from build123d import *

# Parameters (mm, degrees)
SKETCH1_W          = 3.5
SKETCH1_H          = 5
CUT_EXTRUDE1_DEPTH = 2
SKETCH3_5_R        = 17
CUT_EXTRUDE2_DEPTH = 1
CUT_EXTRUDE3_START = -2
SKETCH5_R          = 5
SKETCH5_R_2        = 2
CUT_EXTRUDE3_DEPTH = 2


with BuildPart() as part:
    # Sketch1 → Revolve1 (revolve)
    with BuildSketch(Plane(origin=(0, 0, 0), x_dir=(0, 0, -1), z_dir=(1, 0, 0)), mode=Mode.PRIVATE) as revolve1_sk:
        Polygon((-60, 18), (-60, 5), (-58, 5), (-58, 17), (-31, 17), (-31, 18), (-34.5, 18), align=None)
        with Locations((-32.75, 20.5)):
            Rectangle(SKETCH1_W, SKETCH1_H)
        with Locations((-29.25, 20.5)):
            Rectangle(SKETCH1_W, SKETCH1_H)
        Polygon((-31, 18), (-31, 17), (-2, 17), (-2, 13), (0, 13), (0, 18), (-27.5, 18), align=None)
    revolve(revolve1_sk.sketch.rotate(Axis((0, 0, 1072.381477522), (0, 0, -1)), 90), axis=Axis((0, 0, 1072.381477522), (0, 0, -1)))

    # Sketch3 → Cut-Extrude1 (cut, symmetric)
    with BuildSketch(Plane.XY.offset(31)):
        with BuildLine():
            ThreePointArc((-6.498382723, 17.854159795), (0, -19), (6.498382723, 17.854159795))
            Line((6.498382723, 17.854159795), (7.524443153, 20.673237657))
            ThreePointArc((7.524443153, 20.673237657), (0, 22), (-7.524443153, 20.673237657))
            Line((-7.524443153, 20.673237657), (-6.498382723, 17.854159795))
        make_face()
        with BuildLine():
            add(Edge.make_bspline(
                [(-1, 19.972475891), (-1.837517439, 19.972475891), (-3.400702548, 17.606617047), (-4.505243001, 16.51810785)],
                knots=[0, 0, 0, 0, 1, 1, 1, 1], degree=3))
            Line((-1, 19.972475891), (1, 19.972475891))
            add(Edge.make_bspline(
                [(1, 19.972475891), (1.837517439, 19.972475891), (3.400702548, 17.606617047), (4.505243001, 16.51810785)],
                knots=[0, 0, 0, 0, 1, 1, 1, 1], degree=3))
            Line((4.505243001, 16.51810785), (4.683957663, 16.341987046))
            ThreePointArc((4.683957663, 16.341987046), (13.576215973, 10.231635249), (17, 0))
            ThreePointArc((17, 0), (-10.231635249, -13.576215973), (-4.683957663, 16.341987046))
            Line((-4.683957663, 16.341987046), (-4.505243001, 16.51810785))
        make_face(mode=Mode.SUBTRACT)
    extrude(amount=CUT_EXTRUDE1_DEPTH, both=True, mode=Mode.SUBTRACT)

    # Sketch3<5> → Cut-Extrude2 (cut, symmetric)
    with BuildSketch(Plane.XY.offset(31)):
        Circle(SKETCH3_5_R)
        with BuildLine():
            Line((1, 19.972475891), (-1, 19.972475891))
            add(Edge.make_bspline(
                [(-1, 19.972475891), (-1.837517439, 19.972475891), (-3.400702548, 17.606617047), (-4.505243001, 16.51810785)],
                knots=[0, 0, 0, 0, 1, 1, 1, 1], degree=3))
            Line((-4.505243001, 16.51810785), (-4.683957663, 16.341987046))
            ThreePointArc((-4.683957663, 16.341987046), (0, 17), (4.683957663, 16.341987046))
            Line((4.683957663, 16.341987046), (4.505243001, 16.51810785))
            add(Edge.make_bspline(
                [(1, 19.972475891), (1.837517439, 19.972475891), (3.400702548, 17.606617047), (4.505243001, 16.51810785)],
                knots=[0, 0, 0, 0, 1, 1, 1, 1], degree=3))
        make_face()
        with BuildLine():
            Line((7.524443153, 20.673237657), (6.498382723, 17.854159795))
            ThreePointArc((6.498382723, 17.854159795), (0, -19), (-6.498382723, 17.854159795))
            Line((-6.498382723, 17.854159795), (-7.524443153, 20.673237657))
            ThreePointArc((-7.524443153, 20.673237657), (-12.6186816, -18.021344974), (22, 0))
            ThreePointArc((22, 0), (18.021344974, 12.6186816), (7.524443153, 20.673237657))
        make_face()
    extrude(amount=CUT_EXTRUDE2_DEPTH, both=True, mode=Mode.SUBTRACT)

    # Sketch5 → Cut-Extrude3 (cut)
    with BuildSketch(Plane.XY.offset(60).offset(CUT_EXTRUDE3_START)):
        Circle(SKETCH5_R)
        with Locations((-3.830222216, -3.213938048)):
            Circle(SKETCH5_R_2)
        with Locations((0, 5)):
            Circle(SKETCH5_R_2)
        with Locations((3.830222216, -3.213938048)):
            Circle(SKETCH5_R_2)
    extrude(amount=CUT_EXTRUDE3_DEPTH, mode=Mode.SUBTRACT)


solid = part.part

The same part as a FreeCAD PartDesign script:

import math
import FreeCAD as App
import Part
import Sketcher
Q = App.Units.Quantity

doc = App.newDocument("Part")
body = doc.addObject("PartDesign::Body", "Body")

sketch1 = body.newObject("Sketcher::SketchObject", "Sketch")
sketch1.AttachmentSupport = (doc.getObject("YZ_Plane"), [""])
sketch1.MapMode = "FlatFace"
sketch1.addGeometry(Part.LineSegment(App.Vector(18, 60, 0), App.Vector(5, 60, 0)), False)
sketch1.addGeometry(Part.LineSegment(App.Vector(5, 60, 0), App.Vector(5, 58, 0)), False)
sketch1.addGeometry(Part.LineSegment(App.Vector(5, 58, 0), App.Vector(17, 58, 0)), False)
sketch1.addGeometry(Part.LineSegment(App.Vector(17, 58, 0), App.Vector(17, 2, 0)), False)
sketch1.addGeometry(Part.LineSegment(App.Vector(17, 2, 0), App.Vector(13, 2, 0)), False)
sketch1.addGeometry(Part.LineSegment(App.Vector(13, 2, 0), App.Vector(13, 0, 0)), False)
sketch1.addGeometry(Part.LineSegment(App.Vector(13, 0, 0), App.Vector(18, 0, 0)), False)
sketch1.addGeometry(Part.LineSegment(App.Vector(18, 0, 0), App.Vector(18, 27.5, 0)), False)
sketch1.addGeometry(Part.LineSegment(App.Vector(18, 27.5, 0), App.Vector(23, 27.5, 0)), False)
sketch1.addGeometry(Part.LineSegment(App.Vector(23, 27.5, 0), App.Vector(23, 34.5, 0)), False)
sketch1.addGeometry(Part.LineSegment(App.Vector(23, 34.5, 0), App.Vector(18, 34.5, 0)), False)
sketch1.addGeometry(Part.LineSegment(App.Vector(18, 34.5, 0), App.Vector(18, 60, 0)), False)
sketch1.addConstraint(Sketcher.Constraint("Coincident", 0, 2, 1, 1))
sketch1.addConstraint(Sketcher.Constraint("Coincident", 1, 2, 2, 1))
sketch1.addConstraint(Sketcher.Constraint("Coincident", 2, 2, 3, 1))
sketch1.addConstraint(Sketcher.Constraint("Coincident", 3, 2, 4, 1))
sketch1.addConstraint(Sketcher.Constraint("Coincident", 4, 2, 5, 1))
sketch1.addConstraint(Sketcher.Constraint("Coincident", 5, 2, 6, 1))
sketch1.addConstraint(Sketcher.Constraint("Coincident", 6, 2, 7, 1))
sketch1.addConstraint(Sketcher.Constraint("Coincident", 7, 2, 8, 1))
sketch1.addConstraint(Sketcher.Constraint("Coincident", 8, 2, 9, 1))
sketch1.addConstraint(Sketcher.Constraint("Coincident", 9, 2, 10, 1))
sketch1.addConstraint(Sketcher.Constraint("Coincident", 10, 2, 11, 1))
sketch1.addConstraint(Sketcher.Constraint("Coincident", 11, 2, 0, 1))
sketch1.addConstraint(Sketcher.Constraint("Horizontal", 0))
sketch1.addConstraint(Sketcher.Constraint("Vertical", 1))
sketch1.addConstraint(Sketcher.Constraint("Horizontal", 2))
sketch1.addConstraint(Sketcher.Constraint("Vertical", 3))
sketch1.addConstraint(Sketcher.Constraint("Horizontal", 4))
sketch1.addConstraint(Sketcher.Constraint("Vertical", 5))
sketch1.addConstraint(Sketcher.Constraint("Horizontal", 6))
sketch1.addConstraint(Sketcher.Constraint("Vertical", 7))
sketch1.addConstraint(Sketcher.Constraint("Horizontal", 8))
sketch1.addConstraint(Sketcher.Constraint("Vertical", 9))
sketch1.addConstraint(Sketcher.Constraint("Horizontal", 10))
sketch1.addConstraint(Sketcher.Constraint("Vertical", 11))
sketch1.addConstraint(Sketcher.Constraint("PointOnObject", 5, 2, -1))
sketch1.addConstraint(Sketcher.Constraint("Vertical", 7, 2, 10, 2))
sketch1.addConstraint(Sketcher.Constraint("Equal", 6, 8))
sketch1.addConstraint(Sketcher.Constraint("Equal", 1, 5))
sketch1.addConstraint(Sketcher.Constraint("DistanceX", 0, 2, 0, 1, 13.0))
sketch1.addConstraint(Sketcher.Constraint("DistanceX", 2, 1, 2, 2, 12.0))
sketch1.addConstraint(Sketcher.Constraint("DistanceX", 4, 2, 4, 1, 4.0))
sketch1.addConstraint(Sketcher.Constraint("DistanceY", 1, 2, 1, 1, 2.0))
sketch1.addConstraint(Sketcher.Constraint("DistanceY", 3, 2, 3, 1, 56.0))
sketch1.addConstraint(Sketcher.Constraint("DistanceY", 9, 1, 9, 2, 7.0))
sketch1.addConstraint(Sketcher.Constraint("DistanceY", 7, 1, 7, 2, 27.5))
sketch1.addConstraint(Sketcher.Constraint("DistanceX", -1, 1, 0, 2, 5.0))
revolution = body.newObject("PartDesign::Revolution", "Revolution")
revolution.Profile = sketch1
revolution.ReferenceAxis = (sketch1, ["V_Axis"])
revolution.Angle = 360

sketch2 = body.newObject("Sketcher::SketchObject", "Sketch001")
sketch2.AttachmentSupport = (doc.getObject("XY_Plane"), [""])
sketch2.MapMode = "FlatFace"
sketch2.AttachmentOffset = App.Placement(App.Vector(0, 0, 31), App.Rotation())
sketch2.addGeometry(Part.ArcOfCircle(Part.Circle(App.Vector(0, 0, 0), App.Vector(0, 0, 1), 19), math.radians(110), math.radians(430)), False)
sketch2.addGeometry(Part.LineSegment(App.Vector(6.498383, 17.85416, 0), App.Vector(7.524443, 20.673238, 0)), False)
sketch2.addGeometry(Part.ArcOfCircle(Part.Circle(App.Vector(0, 0, 0), App.Vector(0, 0, 1), 22), math.radians(70), math.radians(110)), False)
sketch2.addGeometry(Part.LineSegment(App.Vector(-7.524443, 20.673238, 0), App.Vector(-6.498383, 17.85416, 0)), False)
sketch2.addGeometry(Part.BSplineCurve([App.Vector(-1, 19.972476, 0), App.Vector(-1.837517, 19.972476, 0), App.Vector(-3.400703, 17.606617, 0), App.Vector(-4.505243, 16.518108, 0)], [4, 4], [0, 1], False, 3, [1, 1, 1, 1], False), False)
sketch2.addGeometry(Part.LineSegment(App.Vector(-1, 19.972476, 0), App.Vector(1, 19.972476, 0)), False)
sketch2.addGeometry(Part.BSplineCurve([App.Vector(1, 19.972476, 0), App.Vector(1.837517, 19.972476, 0), App.Vector(3.400703, 17.606617, 0), App.Vector(4.505243, 16.518108, 0)], [4, 4], [0, 1], False, 3, [1, 1, 1, 1], False), False)
sketch2.addGeometry(Part.LineSegment(App.Vector(4.505243, 16.518108, 0), App.Vector(4.683958, 16.341987, 0)), False)
sketch2.addGeometry(Part.ArcOfCircle(Part.Circle(App.Vector(0, 0, 0), App.Vector(0, 0, 1), 17), math.radians(0), math.radians(74.006582)), False)
sketch2.addGeometry(Part.ArcOfCircle(Part.Circle(App.Vector(0, 0, 0), App.Vector(0, 0, 1), 17), math.radians(105.993418), math.radians(360)), False)
sketch2.addGeometry(Part.LineSegment(App.Vector(-4.683958, 16.341987, 0), App.Vector(-4.505243, 16.518108, 0)), False)
sketch2.addConstraint(Sketcher.Constraint("Block", 4))
sketch2.addConstraint(Sketcher.Constraint("Block", 6))
sketch2.addConstraint(Sketcher.Constraint("Coincident", 0, 2, 1, 1))
sketch2.addConstraint(Sketcher.Constraint("Coincident", 1, 2, 2, 1))
sketch2.addConstraint(Sketcher.Constraint("Coincident", 2, 2, 3, 1))
sketch2.addConstraint(Sketcher.Constraint("Coincident", 3, 2, 0, 1))
sketch2.addConstraint(Sketcher.Constraint("Coincident", 4, 1, 5, 1))
sketch2.addConstraint(Sketcher.Constraint("Coincident", 5, 2, 6, 1))
sketch2.addConstraint(Sketcher.Constraint("Coincident", 6, 2, 7, 1))
sketch2.addConstraint(Sketcher.Constraint("Coincident", 7, 2, 8, 2))
sketch2.addConstraint(Sketcher.Constraint("Tangent", 8, 1, 9, 2))
sketch2.addConstraint(Sketcher.Constraint("Coincident", 9, 1, 10, 1))
sketch2.addConstraint(Sketcher.Constraint("Coincident", 10, 2, 4, 2))
sketch2.addConstraint(Sketcher.Constraint("Coincident", 0, 3, -1, 1))
sketch2.addConstraint(Sketcher.Constraint("Coincident", 2, 3, -1, 1))
sketch2.addConstraint(Sketcher.Constraint("Coincident", 8, 3, -1, 1))
sketch2.addConstraint(Sketcher.Constraint("Equal", 8, 9))
sketch2.addConstraint(Sketcher.Constraint("PointOnObject", 8, 1, -1))
sketch2.addConstraint(Sketcher.Constraint("Horizontal", 1, 2, 2, 2))
sketch2.addConstraint(Sketcher.Constraint("Horizontal", 0, 2, 3, 2))
sketch2.addConstraint(Sketcher.Constraint("Horizontal", 7, 2, 9, 1))
sketch2.addConstraint(Sketcher.Constraint("Radius", 0, 19.0))
sketch2.addConstraint(Sketcher.Constraint("Radius", 2, 22.0))
sketch2.addConstraint(Sketcher.Constraint("Radius", 8, 17.0))
sketch2.addConstraint(Sketcher.Constraint("Angle", 1, Q("70 deg")))
sketch2.addConstraint(Sketcher.Constraint("DistanceX", 2, 2, 7, 2, 12.208401))
sketch2.addConstraint(Sketcher.Constraint("DistanceX", 2, 2, 10, 2, 3.0192))
pocket1 = body.newObject("PartDesign::Pocket", "Pocket")
pocket1.Profile = sketch2
pocket1.Length = 4
pocket1.Midplane = True

sketch3 = body.newObject("Sketcher::SketchObject", "Sketch002")
sketch3.AttachmentSupport = (doc.getObject("XY_Plane"), [""])
sketch3.MapMode = "FlatFace"
sketch3.AttachmentOffset = App.Placement(App.Vector(0, 0, 31), App.Rotation())
sketch3.addGeometry(Part.LineSegment(App.Vector(4.683958, 16.341987, 0), App.Vector(4.505243, 16.518108, 0)), False)
sketch3.addGeometry(Part.BSplineCurve([App.Vector(1, 19.972476, 0), App.Vector(1.837517, 19.972476, 0), App.Vector(3.400703, 17.606617, 0), App.Vector(4.505243, 16.518108, 0)], [4, 4], [0, 1], False, 3, [1, 1, 1, 1], False), False)
sketch3.addGeometry(Part.LineSegment(App.Vector(1, 19.972476, 0), App.Vector(-1, 19.972476, 0)), False)
sketch3.addGeometry(Part.BSplineCurve([App.Vector(-1, 19.972476, 0), App.Vector(-1.837517, 19.972476, 0), App.Vector(-3.400703, 17.606617, 0), App.Vector(-4.505243, 16.518108, 0)], [4, 4], [0, 1], False, 3, [1, 1, 1, 1], False), False)
sketch3.addGeometry(Part.LineSegment(App.Vector(-4.505243, 16.518108, 0), App.Vector(-4.683958, 16.341987, 0)), False)
sketch3.addGeometry(Part.ArcOfCircle(Part.Circle(App.Vector(0, 0, 0), App.Vector(0, 0, 1), 17), math.radians(105.993418), math.radians(434.006582)), False)
sketch3.addGeometry(Part.LineSegment(App.Vector(7.524443, 20.673238, 0), App.Vector(6.498383, 17.85416, 0)), False)
sketch3.addGeometry(Part.ArcOfCircle(Part.Circle(App.Vector(0, 0, 0), App.Vector(0, 0, 1), 19), math.radians(110), math.radians(430)), False)
sketch3.addGeometry(Part.LineSegment(App.Vector(-6.498383, 17.85416, 0), App.Vector(-7.524443, 20.673238, 0)), False)
sketch3.addGeometry(Part.ArcOfCircle(Part.Circle(App.Vector(0, 0, 0), App.Vector(0, 0, 1), 22), math.radians(110), math.radians(430)), False)
sketch3.addConstraint(Sketcher.Constraint("Block", 1))
sketch3.addConstraint(Sketcher.Constraint("Block", 3))
sketch3.addConstraint(Sketcher.Constraint("Coincident", 0, 2, 1, 2))
sketch3.addConstraint(Sketcher.Constraint("Coincident", 1, 1, 2, 1))
sketch3.addConstraint(Sketcher.Constraint("Coincident", 2, 2, 3, 1))
sketch3.addConstraint(Sketcher.Constraint("Coincident", 3, 2, 4, 1))
sketch3.addConstraint(Sketcher.Constraint("Coincident", 4, 2, 5, 1))
sketch3.addConstraint(Sketcher.Constraint("Coincident", 5, 2, 0, 1))
sketch3.addConstraint(Sketcher.Constraint("Coincident", 6, 2, 7, 2))
sketch3.addConstraint(Sketcher.Constraint("Coincident", 7, 1, 8, 1))
sketch3.addConstraint(Sketcher.Constraint("Coincident", 8, 2, 9, 1))
sketch3.addConstraint(Sketcher.Constraint("Coincident", 9, 2, 6, 1))
sketch3.addConstraint(Sketcher.Constraint("Coincident", 5, 3, -1, 1))
sketch3.addConstraint(Sketcher.Constraint("Coincident", 7, 3, -1, 1))
sketch3.addConstraint(Sketcher.Constraint("Coincident", 9, 3, -1, 1))
sketch3.addConstraint(Sketcher.Constraint("Horizontal", 4, 2, 5, 2))
sketch3.addConstraint(Sketcher.Constraint("Horizontal", 6, 2, 7, 1))
sketch3.addConstraint(Sketcher.Constraint("Horizontal", 8, 2, 9, 2))
sketch3.addConstraint(Sketcher.Constraint("Radius", 5, 17.0))
sketch3.addConstraint(Sketcher.Constraint("Radius", 7, 19.0))
sketch3.addConstraint(Sketcher.Constraint("Radius", 9, 22.0))
sketch3.addConstraint(Sketcher.Constraint("Angle", 6, Q("-110 deg")))
sketch3.addConstraint(Sketcher.Constraint("DistanceX", 4, 2, 0, 2, 9.189201))
sketch3.addConstraint(Sketcher.Constraint("DistanceX", 8, 2, 5, 2, 12.208401))
pocket2 = body.newObject("PartDesign::Pocket", "Pocket001")
pocket2.Profile = sketch3
pocket2.Length = 2
pocket2.Midplane = True

sketch4 = body.newObject("Sketcher::SketchObject", "Sketch003")
sketch4.AttachmentSupport = (doc.getObject("XY_Plane"), [""])
sketch4.MapMode = "FlatFace"
sketch4.AttachmentOffset = App.Placement(App.Vector(0, 0, 58), App.Rotation())
sketch4.addGeometry(Part.ArcOfCircle(Part.Circle(App.Vector(0, 0, 0), App.Vector(0, 0, 1), 5), math.radians(-117), math.radians(-63)), False)
sketch4.addGeometry(Part.ArcOfCircle(Part.Circle(App.Vector(3.8, -3.2, 0), App.Vector(0, 0, 1), 2), math.radians(-142), math.radians(62)), False)
sketch4.addGeometry(Part.ArcOfCircle(Part.Circle(App.Vector(0, 0, 0), App.Vector(0, 0, 1), 5), math.radians(-17), math.radians(67)), False)
sketch4.addGeometry(Part.ArcOfCircle(Part.Circle(App.Vector(0, 5, 0), App.Vector(0, 0, 1), 2), math.radians(-12), math.radians(192)), False)
sketch4.addGeometry(Part.ArcOfCircle(Part.Circle(App.Vector(0, 0, 0), App.Vector(0, 0, 1), 5), math.radians(113), math.radians(197)), False)
sketch4.addGeometry(Part.ArcOfCircle(Part.Circle(App.Vector(-3.8, -3.2, 0), App.Vector(0, 0, 1), 2), math.radians(118), math.radians(322)), False)
sketch4.addConstraint(Sketcher.Constraint("Coincident", 0, 2, 1, 1))
sketch4.addConstraint(Sketcher.Constraint("Coincident", 1, 2, 2, 1))
sketch4.addConstraint(Sketcher.Constraint("Coincident", 2, 2, 3, 1))
sketch4.addConstraint(Sketcher.Constraint("Coincident", 3, 2, 4, 1))
sketch4.addConstraint(Sketcher.Constraint("Coincident", 4, 2, 5, 1))
sketch4.addConstraint(Sketcher.Constraint("Coincident", 5, 2, 0, 1))
sketch4.addConstraint(Sketcher.Constraint("Coincident", 0, 3, -1, 1))
sketch4.addConstraint(Sketcher.Constraint("Coincident", 2, 3, -1, 1))
sketch4.addConstraint(Sketcher.Constraint("Coincident", 4, 3, -1, 1))
sketch4.addConstraint(Sketcher.Constraint("Equal", 0, 2))
sketch4.addConstraint(Sketcher.Constraint("Equal", 1, 3))
sketch4.addConstraint(Sketcher.Constraint("Equal", 2, 4))
sketch4.addConstraint(Sketcher.Constraint("Equal", 3, 5))
sketch4.addConstraint(Sketcher.Constraint("Symmetric", 1, 3, 5, 3, -2))
sketch4.addConstraint(Sketcher.Constraint("PointOnObject", 3, 3, -2))
sketch4.addConstraint(Sketcher.Constraint("Radius", 0, 5.0))
sketch4.addConstraint(Sketcher.Constraint("Radius", 1, 2.0))
sketch4.addConstraint(Sketcher.Constraint("DistanceY", -1, 1, 3, 3, 5.0))
sketch4.addConstraint(Sketcher.Constraint("DistanceY", 1, 3, -1, 1, 3.213938))
sketch4.addConstraint(Sketcher.Constraint("DistanceY", 1, 2, -1, 1, 1.455689))
pocket3 = body.newObject("PartDesign::Pocket", "Pocket002")
pocket3.Profile = sketch4
pocket3.Length = 2
pocket3.Reversed = True

doc.recompute()
